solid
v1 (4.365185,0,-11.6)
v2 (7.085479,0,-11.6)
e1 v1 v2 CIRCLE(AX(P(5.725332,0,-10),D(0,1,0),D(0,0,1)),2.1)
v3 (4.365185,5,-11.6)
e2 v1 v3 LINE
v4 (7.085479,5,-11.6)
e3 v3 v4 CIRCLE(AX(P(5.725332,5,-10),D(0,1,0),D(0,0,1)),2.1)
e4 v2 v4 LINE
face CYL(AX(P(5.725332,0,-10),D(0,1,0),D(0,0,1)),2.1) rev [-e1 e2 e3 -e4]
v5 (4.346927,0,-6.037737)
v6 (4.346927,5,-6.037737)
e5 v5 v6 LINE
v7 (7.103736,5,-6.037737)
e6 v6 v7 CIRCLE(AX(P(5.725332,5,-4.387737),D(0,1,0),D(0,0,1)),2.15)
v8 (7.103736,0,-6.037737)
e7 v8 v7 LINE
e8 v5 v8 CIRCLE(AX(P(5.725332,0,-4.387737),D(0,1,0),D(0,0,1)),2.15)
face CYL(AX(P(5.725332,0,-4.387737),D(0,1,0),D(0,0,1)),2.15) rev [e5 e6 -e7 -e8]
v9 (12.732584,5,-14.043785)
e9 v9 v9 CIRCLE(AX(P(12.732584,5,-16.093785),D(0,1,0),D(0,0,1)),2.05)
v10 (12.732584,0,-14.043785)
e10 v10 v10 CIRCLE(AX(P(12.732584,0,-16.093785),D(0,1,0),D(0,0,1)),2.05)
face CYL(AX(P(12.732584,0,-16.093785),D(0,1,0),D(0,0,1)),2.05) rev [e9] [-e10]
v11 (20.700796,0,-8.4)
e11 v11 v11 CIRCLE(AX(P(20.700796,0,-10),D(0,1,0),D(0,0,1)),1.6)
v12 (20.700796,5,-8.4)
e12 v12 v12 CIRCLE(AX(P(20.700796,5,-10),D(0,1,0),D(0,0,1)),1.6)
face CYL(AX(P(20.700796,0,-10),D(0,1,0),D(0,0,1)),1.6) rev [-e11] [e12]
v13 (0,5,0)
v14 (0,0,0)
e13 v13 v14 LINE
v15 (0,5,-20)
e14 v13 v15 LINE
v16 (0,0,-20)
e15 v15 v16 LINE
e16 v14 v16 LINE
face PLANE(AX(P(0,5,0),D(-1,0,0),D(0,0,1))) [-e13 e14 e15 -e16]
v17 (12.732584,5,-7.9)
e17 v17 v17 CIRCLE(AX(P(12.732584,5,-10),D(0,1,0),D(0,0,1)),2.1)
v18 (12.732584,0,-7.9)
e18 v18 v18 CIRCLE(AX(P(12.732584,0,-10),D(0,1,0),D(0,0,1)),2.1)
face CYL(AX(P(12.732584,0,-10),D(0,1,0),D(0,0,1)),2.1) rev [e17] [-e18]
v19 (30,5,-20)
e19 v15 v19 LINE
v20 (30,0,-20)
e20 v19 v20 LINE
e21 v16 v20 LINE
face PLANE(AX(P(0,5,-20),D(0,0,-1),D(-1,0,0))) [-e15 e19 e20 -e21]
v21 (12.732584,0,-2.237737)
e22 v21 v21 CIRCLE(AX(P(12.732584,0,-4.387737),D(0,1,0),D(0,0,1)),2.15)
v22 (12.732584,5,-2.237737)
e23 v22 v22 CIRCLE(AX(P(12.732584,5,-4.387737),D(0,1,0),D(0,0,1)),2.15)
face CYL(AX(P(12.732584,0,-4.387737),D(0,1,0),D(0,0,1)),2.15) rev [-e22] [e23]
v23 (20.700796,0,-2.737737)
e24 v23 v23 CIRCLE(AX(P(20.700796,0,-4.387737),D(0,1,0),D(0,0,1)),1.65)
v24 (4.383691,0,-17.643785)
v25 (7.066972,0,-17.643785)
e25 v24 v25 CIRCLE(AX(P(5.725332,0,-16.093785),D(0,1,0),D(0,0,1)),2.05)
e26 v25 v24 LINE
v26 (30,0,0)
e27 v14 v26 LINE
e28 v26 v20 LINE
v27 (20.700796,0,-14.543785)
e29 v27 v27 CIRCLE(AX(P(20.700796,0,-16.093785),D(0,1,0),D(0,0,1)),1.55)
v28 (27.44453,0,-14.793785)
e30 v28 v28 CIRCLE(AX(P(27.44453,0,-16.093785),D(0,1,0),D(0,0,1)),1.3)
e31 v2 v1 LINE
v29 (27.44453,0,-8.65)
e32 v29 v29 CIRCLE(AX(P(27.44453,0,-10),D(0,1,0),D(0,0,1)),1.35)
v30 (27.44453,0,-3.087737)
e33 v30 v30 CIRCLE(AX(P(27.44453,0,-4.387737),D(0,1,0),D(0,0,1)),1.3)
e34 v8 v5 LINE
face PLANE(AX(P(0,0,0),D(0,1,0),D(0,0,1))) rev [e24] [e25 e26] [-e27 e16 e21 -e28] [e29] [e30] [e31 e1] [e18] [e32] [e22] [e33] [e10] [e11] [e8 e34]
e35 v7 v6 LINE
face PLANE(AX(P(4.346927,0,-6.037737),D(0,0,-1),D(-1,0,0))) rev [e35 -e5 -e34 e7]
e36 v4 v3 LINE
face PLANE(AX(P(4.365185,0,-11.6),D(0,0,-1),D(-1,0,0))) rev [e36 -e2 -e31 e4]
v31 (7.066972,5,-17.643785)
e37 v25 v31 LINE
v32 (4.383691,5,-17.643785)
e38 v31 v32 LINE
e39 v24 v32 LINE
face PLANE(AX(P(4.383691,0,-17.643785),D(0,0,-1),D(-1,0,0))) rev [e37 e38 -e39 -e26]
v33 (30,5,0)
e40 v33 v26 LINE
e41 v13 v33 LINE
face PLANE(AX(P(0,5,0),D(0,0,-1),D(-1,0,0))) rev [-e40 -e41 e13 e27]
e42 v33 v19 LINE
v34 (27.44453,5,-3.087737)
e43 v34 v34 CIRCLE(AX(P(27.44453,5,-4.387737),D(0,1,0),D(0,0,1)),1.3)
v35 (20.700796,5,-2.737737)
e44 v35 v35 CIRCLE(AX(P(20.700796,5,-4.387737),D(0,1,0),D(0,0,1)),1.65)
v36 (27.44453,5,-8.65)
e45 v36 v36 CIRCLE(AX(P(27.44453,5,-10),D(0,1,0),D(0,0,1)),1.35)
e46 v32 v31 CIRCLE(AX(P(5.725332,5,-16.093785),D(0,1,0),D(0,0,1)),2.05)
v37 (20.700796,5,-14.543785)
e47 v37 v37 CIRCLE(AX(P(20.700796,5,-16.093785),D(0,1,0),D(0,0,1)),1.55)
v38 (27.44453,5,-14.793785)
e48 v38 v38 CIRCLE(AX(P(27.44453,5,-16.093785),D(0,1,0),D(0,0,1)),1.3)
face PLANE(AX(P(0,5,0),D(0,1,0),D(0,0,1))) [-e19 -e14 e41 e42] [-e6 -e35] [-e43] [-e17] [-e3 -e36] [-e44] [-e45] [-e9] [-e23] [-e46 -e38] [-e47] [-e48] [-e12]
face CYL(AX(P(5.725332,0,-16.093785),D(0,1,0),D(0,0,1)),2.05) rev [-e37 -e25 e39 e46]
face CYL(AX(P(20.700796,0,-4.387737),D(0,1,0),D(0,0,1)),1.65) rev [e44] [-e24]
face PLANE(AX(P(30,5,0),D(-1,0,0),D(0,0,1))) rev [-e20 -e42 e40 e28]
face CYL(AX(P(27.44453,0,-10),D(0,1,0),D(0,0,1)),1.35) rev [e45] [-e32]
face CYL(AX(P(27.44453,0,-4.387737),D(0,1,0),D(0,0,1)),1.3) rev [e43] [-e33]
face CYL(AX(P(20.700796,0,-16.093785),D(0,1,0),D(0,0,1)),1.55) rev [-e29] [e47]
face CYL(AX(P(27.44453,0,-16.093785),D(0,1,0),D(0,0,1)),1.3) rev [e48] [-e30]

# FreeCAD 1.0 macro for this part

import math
import FreeCAD as App
import Part
import Sketcher
Q = App.Units.Quantity


def add_polygon(sketch, points):
    """Adds a closed chain of lines whose ends are joined by coincident constraints."""
    first, n = sketch.GeometryCount, len(points)
    for a, b in zip(points, points[1:] + points[:1]):
        sketch.addGeometry(Part.LineSegment(App.Vector(*a, 0), App.Vector(*b, 0)), False)
    for i in range(n):
        sketch.addConstraint(Sketcher.Constraint("Coincident", first + i, 2, first + (i + 1) % n, 1))

doc = App.newDocument("Part")
body = doc.addObject("PartDesign::Body", "Body")

# Sketch on XZ plane
sketch1 = doc.addObject("Sketcher::SketchObject", "Sketch")
body.addObject(sketch1)
sketch1.AttachmentSupport = (doc.XZ_Plane, [""])
sketch1.MapMode = "FlatFace"
add_polygon(sketch1, [(0, -20), (0, 0), (30, 0), (30, -20)])  # lines 0-3
sketch1.addConstraint(Sketcher.Constraint("Vertical", 0))
sketch1.addConstraint(Sketcher.Constraint("Horizontal", 1))
sketch1.addConstraint(Sketcher.Constraint("Vertical", 2))
sketch1.addConstraint(Sketcher.Constraint("Horizontal", 3))
sketch1.addConstraint(Sketcher.Constraint("Coincident", 0, 2, -1, 1))
sketch1.addConstraint(Sketcher.Constraint("DistanceX", 1, 1, 1, 2, Q("30 mm")))
sketch1.addConstraint(Sketcher.Constraint("DistanceY", 0, 1, 0, 2, Q("20 mm")))
pad1 = doc.addObject("PartDesign::Pad", "Pad")
body.addObject(pad1)
pad1.Profile = sketch1
pad1.Length = 5
pad1.Reversed = True

# Sketch on XZ plane
sketch2 = doc.addObject("Sketcher::SketchObject", "Sketch001")
body.addObject(sketch2)
sketch2.AttachmentSupport = (doc.XZ_Plane, [""])
sketch2.MapMode = "FlatFace"
sketch2.AttachmentOffset = App.Placement(App.Vector(0, 0, -5), App.Rotation())
sketch2.addGeometry(Part.Circle(App.Vector(27.4, -10, 0), App.Vector(0, 0, 1), 1.4), False)
sketch2.addGeometry(Part.Circle(App.Vector(20.7, -10, 0), App.Vector(0, 0, 1), 1.6), False)
sketch2.addGeometry(Part.Circle(App.Vector(12.7, -10, 0), App.Vector(0, 0, 1), 2.1), False)
sketch2.addGeometry(Part.Circle(App.Vector(20.7, -16.1, 0), App.Vector(0, 0, 1), 1.6), False)
sketch2.addGeometry(Part.Circle(App.Vector(27.4, -16.1, 0), App.Vector(0, 0, 1), 1.3), False)
sketch2.addGeometry(Part.Circle(App.Vector(12.7, -16.1, 0), App.Vector(0, 0, 1), 2), False)
sketch2.addGeometry(Part.Circle(App.Vector(20.7, -4.4, 0), App.Vector(0, 0, 1), 1.6), False)
sketch2.addGeometry(Part.Circle(App.Vector(27.4, -4.4, 0), App.Vector(0, 0, 1), 1.3), False)
sketch2.addGeometry(Part.Circle(App.Vector(12.7, -4.4, 0), App.Vector(0, 0, 1), 2.1), False)
sketch2.addGeometry(Part.LineSegment(App.Vector(7.1, -11.6, 0), App.Vector(4.4, -11.6, 0)), False)
sketch2.addGeometry(Part.ArcOfCircle(Part.Circle(App.Vector(5.7, -10, 0), App.Vector(0, 0, 1), 2.1), math.radians(-50), math.radians(230)), False)
sketch2.addGeometry(Part.LineSegment(App.Vector(7.1, -6, 0), App.Vector(4.3, -6, 0)), False)
sketch2.addGeometry(Part.ArcOfCircle(Part.Circle(App.Vector(5.7, -4.4, 0), App.Vector(0, 0, 1), 2.1), math.radians(-50), math.radians(230)), False)
sketch2.addGeometry(Part.LineSegment(App.Vector(7.1, -17.6, 0), App.Vector(4.4, -17.6, 0)), False)
sketch2.addGeometry(Part.ArcOfCircle(Part.Circle(App.Vector(5.7, -16.1, 0), App.Vector(0, 0, 1), 2), math.radians(-49), math.radians(229)), False)
sketch2.addConstraint(Sketcher.Constraint("Coincident", 9, 1, 10, 1))
sketch2.addConstraint(Sketcher.Constraint("Coincident", 10, 2, 9, 2))
sketch2.addConstraint(Sketcher.Constraint("Coincident", 11, 1, 12, 1))
sketch2.addConstraint(Sketcher.Constraint("Coincident", 12, 2, 11, 2))
sketch2.addConstraint(Sketcher.Constraint("Coincident", 13, 1, 14, 1))
sketch2.addConstraint(Sketcher.Constraint("Coincident", 14, 2, 13, 2))
sketch2.addConstraint(Sketcher.Constraint("Horizontal", 9))
sketch2.addConstraint(Sketcher.Constraint("Horizontal", 11))
sketch2.addConstraint(Sketcher.Constraint("Horizontal", 13))
sketch2.addConstraint(Sketcher.Constraint("Equal", 4, 7))
sketch2.addConstraint(Sketcher.Constraint("Equal", 2, 10))
sketch2.addConstraint(Sketcher.Constraint("Equal", 8, 12))
sketch2.addConstraint(Sketcher.Constraint("Equal", 5, 14))
sketch2.addConstraint(Sketcher.Constraint("Horizontal", 0, 3, 1, 3))
sketch2.addConstraint(Sketcher.Constraint("Horizontal", 1, 3, 2, 3))
sketch2.addConstraint(Sketcher.Constraint("Horizontal", 3, 3, 4, 3))
sketch2.addConstraint(Sketcher.Constraint("Horizontal", 4, 3, 5, 3))
sketch2.addConstraint(Sketcher.Constraint("Horizontal", 6, 3, 7, 3))
sketch2.addConstraint(Sketcher.Constraint("Horizontal", 7, 3, 8, 3))
sketch2.addConstraint(Sketcher.Constraint("Horizontal", 2, 3, 10, 3))
sketch2.addConstraint(Sketcher.Constraint("Horizontal", 8, 3, 12, 3))
sketch2.addConstraint(Sketcher.Constraint("Horizontal", 5, 3, 14, 3))
sketch2.addConstraint(Sketcher.Constraint("Vertical", 1, 3, 3, 3))
sketch2.addConstraint(Sketcher.Constraint("Vertical", 0, 3, 4, 3))
sketch2.addConstraint(Sketcher.Constraint("Vertical", 2, 3, 5, 3))
sketch2.addConstraint(Sketcher.Constraint("Vertical", 3, 3, 6, 3))
sketch2.addConstraint(Sketcher.Constraint("Vertical", 4, 3, 7, 3))
sketch2.addConstraint(Sketcher.Constraint("Vertical", 5, 3, 8, 3))
sketch2.addConstraint(Sketcher.Constraint("Vertical", 10, 3, 12, 3))
sketch2.addConstraint(Sketcher.Constraint("Vertical", 12, 3, 14, 3))
sketch2.addConstraint(Sketcher.Constraint("Diameter", 0, Q("2.7 mm")))
sketch2.addConstraint(Sketcher.Constraint("Diameter", 1, Q("3.2 mm")))
sketch2.addConstraint(Sketcher.Constraint("Diameter", 2, Q("4.2 mm")))
sketch2.addConstraint(Sketcher.Constraint("Diameter", 3, Q("3.1 mm")))
sketch2.addConstraint(Sketcher.Constraint("Diameter", 4, Q("2.6 mm")))
sketch2.addConstraint(Sketcher.Constraint("Diameter", 5, Q("4.1 mm")))
sketch2.addConstraint(Sketcher.Constraint("Diameter", 6, Q("3.3 mm")))
sketch2.addConstraint(Sketcher.Constraint("Diameter", 8, Q("4.3 mm")))
sketch2.addConstraint(Sketcher.Constraint("DistanceY", 0, 3, -1, 1, Q("10 mm")))
sketch2.addConstraint(Sketcher.Constraint("DistanceY", 9, 1, -1, 1, Q("11.6 mm")))
sketch2.addConstraint(Sketcher.Constraint("DistanceY", 11, 1, 12, 3, Q("1.65 mm")))
sketch2.addConstraint(Sketcher.Constraint("DistanceY", 13, 1, 14, 3, Q("1.55 mm")))
sketch2.addConstraint(Sketcher.Constraint("DistanceX", 10, 2, 2, 3, Q("8.367399 mm")))
sketch2.addConstraint(Sketcher.Constraint("DistanceX", -1, 1, 0, 3, Q("27.44453 mm")))
sketch2.addConstraint(Sketcher.Constraint("DistanceX", -1, 1, 10, 3, Q("5.725332 mm")))
sketch2.addConstraint(Sketcher.Constraint("DistanceX", -1, 1, 1, 3, Q("20.700796 mm")))
sketch2.addConstraint(Sketcher.Constraint("DistanceY", 3, 3, -1, 1, Q("16.093785 mm")))
sketch2.addConstraint(Sketcher.Constraint("DistanceY", 6, 3, -1, 1, Q("4.387737 mm")))
pocket1 = doc.addObject("PartDesign::Pocket", "Pocket")
body.addObject(pocket1)
pocket1.Profile = sketch2
pocket1.Type = "ThroughAll"
pocket1.Reversed = True

doc.recompute()
